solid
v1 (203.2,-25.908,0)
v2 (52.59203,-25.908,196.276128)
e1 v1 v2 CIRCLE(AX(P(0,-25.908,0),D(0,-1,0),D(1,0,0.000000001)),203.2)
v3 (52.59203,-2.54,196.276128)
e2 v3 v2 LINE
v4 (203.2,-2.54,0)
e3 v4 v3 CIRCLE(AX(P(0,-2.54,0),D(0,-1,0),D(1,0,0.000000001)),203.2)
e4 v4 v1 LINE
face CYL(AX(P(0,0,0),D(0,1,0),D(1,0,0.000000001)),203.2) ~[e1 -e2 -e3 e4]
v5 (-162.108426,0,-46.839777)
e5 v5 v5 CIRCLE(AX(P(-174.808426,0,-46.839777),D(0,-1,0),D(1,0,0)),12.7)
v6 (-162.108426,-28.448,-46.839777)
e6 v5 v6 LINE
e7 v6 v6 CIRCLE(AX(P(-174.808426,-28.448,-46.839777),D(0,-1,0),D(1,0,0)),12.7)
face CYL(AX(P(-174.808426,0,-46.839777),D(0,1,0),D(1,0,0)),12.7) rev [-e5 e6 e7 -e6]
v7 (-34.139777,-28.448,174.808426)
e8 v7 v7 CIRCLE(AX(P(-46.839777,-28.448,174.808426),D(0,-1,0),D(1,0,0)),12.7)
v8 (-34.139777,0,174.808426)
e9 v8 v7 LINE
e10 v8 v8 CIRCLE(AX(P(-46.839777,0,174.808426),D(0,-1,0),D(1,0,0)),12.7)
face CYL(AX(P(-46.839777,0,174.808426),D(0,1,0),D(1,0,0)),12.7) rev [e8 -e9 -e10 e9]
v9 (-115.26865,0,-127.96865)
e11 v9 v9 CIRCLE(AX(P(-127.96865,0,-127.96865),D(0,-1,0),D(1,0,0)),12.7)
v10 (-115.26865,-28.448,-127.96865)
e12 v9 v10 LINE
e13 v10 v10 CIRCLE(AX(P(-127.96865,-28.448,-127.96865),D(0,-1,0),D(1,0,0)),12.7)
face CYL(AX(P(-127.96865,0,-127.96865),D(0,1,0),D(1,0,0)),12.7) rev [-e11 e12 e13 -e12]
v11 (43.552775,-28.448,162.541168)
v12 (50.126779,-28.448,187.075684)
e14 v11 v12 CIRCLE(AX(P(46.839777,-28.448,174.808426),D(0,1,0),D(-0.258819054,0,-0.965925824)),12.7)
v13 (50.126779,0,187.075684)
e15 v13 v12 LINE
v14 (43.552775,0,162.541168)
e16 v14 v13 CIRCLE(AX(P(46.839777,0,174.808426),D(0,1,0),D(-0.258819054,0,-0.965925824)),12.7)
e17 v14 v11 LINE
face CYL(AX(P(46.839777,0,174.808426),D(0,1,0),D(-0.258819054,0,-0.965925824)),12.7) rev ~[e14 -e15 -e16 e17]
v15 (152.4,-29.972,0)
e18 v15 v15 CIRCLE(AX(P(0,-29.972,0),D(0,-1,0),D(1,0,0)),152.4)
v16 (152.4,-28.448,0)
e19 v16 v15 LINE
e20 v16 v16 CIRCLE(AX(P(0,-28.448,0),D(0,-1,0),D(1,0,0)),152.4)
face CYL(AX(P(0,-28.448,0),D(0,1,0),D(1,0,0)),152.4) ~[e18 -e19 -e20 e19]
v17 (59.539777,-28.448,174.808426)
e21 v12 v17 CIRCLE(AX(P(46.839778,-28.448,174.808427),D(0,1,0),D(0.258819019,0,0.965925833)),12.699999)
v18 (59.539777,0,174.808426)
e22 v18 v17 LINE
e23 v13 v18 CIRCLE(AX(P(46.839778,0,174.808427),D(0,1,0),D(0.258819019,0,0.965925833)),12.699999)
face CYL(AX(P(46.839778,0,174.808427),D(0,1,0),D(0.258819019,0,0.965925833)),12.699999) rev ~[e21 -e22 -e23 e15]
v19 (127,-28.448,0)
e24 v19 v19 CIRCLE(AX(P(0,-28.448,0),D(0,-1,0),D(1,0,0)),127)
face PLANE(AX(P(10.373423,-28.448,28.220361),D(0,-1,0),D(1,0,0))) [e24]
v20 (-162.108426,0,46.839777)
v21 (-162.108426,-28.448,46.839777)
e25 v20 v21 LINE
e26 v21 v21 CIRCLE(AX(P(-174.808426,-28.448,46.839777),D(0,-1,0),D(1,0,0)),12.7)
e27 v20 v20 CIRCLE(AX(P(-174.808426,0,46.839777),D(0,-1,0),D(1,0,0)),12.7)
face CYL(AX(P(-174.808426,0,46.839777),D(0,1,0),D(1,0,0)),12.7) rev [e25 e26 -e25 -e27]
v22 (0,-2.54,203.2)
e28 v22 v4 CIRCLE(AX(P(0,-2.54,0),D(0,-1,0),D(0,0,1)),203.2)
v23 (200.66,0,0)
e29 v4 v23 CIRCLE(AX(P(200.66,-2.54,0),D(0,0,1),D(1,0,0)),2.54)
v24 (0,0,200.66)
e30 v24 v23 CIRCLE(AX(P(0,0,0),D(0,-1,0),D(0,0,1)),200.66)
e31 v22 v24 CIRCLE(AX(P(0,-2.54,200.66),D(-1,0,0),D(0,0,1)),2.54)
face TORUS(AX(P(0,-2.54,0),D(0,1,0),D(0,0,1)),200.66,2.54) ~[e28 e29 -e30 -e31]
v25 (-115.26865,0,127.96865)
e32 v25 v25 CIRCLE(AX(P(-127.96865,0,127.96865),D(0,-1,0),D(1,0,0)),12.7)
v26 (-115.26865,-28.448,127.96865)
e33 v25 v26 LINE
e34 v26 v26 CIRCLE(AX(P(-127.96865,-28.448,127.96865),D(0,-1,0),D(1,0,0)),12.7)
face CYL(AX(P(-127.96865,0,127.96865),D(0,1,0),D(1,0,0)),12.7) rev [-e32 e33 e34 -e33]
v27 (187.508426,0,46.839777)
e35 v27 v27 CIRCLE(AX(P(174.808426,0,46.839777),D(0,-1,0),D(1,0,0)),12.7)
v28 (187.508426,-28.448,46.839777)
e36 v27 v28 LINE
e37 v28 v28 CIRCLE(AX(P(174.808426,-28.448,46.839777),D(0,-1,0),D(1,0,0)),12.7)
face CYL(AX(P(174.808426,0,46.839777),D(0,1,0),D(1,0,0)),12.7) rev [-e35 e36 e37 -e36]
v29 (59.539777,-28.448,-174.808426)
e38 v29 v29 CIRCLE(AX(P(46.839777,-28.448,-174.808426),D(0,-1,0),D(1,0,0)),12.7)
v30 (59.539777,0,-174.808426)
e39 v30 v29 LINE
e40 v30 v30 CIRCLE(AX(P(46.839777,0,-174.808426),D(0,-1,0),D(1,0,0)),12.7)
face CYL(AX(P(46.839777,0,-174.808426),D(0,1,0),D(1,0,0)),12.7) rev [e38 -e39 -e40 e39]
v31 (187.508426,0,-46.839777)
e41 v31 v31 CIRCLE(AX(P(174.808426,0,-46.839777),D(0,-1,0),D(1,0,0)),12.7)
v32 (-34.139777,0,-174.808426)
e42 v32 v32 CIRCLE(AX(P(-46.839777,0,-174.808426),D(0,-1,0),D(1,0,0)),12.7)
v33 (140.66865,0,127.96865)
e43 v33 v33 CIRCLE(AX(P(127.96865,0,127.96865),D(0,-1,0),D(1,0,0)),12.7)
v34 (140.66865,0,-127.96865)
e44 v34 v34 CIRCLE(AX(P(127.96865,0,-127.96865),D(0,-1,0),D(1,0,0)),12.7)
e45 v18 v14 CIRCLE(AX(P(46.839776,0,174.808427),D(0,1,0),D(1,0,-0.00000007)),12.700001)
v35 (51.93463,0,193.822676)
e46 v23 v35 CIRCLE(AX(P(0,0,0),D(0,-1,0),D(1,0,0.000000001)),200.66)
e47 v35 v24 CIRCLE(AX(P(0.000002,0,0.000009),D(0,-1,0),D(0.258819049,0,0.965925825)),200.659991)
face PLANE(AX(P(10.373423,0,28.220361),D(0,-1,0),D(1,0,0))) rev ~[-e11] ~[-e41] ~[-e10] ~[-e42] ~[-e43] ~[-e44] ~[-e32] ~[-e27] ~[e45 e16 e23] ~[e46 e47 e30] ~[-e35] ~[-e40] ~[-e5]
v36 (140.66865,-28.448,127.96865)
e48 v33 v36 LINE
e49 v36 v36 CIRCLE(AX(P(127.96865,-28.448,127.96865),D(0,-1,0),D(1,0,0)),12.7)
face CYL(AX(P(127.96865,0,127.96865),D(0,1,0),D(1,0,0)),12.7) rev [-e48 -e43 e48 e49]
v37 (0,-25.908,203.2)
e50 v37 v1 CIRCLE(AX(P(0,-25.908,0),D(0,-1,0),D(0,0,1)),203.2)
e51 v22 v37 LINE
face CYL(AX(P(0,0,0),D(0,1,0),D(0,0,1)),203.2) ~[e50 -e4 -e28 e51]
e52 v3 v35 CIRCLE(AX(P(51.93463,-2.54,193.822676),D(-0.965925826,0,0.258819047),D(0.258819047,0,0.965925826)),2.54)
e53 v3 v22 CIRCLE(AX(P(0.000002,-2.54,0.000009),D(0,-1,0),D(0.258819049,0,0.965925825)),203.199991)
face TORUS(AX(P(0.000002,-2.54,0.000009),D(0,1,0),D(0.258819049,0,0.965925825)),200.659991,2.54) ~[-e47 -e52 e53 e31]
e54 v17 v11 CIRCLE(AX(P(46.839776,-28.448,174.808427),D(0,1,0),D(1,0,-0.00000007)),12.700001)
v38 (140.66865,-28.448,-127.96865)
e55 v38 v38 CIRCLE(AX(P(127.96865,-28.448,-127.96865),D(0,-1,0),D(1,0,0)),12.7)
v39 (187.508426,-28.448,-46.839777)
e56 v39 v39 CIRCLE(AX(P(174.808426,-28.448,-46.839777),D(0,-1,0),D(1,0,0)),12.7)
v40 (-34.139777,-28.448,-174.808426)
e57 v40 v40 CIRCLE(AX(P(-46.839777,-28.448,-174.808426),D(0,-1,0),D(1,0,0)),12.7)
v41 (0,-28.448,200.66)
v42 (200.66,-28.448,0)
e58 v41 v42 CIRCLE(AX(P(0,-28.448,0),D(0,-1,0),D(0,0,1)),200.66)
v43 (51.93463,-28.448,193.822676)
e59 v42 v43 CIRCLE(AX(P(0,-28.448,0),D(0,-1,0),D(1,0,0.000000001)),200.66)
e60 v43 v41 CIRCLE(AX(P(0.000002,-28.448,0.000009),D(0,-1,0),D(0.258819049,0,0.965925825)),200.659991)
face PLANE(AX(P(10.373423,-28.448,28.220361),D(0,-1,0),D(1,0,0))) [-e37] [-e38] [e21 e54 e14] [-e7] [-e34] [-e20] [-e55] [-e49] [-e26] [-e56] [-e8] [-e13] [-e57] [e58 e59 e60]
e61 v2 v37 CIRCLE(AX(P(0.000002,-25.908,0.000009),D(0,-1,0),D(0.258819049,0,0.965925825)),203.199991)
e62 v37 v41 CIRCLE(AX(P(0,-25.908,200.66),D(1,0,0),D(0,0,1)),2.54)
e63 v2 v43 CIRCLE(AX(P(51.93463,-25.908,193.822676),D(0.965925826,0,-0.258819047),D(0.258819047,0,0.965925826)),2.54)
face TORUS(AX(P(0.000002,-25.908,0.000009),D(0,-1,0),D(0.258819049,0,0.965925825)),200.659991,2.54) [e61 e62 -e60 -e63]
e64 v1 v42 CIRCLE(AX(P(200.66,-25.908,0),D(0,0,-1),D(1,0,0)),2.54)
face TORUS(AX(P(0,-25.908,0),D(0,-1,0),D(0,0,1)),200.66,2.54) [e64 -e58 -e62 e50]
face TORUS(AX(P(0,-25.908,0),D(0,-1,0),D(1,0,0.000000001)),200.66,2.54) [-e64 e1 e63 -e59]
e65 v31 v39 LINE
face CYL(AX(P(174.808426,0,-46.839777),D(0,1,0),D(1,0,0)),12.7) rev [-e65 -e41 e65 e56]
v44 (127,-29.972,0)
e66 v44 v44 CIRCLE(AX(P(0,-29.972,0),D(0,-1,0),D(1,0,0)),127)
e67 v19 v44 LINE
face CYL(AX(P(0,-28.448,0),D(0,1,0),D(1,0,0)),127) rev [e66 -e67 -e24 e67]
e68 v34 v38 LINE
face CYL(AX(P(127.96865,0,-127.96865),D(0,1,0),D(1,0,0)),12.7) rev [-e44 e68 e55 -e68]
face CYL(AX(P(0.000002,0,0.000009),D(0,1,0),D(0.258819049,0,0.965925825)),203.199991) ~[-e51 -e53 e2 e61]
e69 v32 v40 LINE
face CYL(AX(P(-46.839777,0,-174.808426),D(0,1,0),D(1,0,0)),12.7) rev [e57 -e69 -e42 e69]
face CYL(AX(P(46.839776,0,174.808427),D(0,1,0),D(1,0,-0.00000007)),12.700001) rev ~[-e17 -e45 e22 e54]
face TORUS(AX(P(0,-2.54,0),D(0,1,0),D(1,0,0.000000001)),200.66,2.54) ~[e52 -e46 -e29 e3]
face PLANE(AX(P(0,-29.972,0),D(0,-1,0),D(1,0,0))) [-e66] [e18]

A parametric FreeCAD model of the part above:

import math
import FreeCAD as App
import Part
import Sketcher
Q = App.Units.Quantity


def edges_at(feature, points):
    """Names of the edges that pass closest to the given points."""
    edges = feature.Shape.Edges
    near = lambda p: min(range(len(edges)), key=lambda i: edges[i].distToShape(Part.Vertex(*p))[0])
    return sorted({f"Edge{near(p) + 1}" for p in points})

doc = App.newDocument("Part")
body = doc.addObject("PartDesign::Body", "Body")

sketch1 = doc.addObject("Sketcher::SketchObject", "Sketch")
body.addObject(sketch1)
sketch1.AttachmentSupport = (doc.XZ_Plane, [""])
sketch1.MapMode = "FlatFace"
sketch1.addGeometry([
    Part.ArcOfCircle(Part.Circle(App.Vector(0, 0, 0), App.Vector(0, 0, 1), 203), math.radians(90), math.radians(360)),
    Part.ArcOfCircle(Part.Circle(App.Vector(0, 0, 0), App.Vector(0, 0, 1), 203), math.radians(0), math.radians(75)),
    Part.ArcOfCircle(Part.Circle(App.Vector(0, 0, 0), App.Vector(0, 0, 1), 203), math.radians(75), math.radians(90)),
    Part.ArcOfCircle(Part.Circle(App.Vector(47, 175, 0), App.Vector(0, 0, 1), 13), math.radians(-105), math.radians(0)),
    Part.ArcOfCircle(Part.Circle(App.Vector(47, 175, 0), App.Vector(0, 0, 1), 13), math.radians(75), math.radians(255)),
    Part.ArcOfCircle(Part.Circle(App.Vector(47, 175, 0), App.Vector(0, 0, 1), 13), math.radians(0), math.radians(75)),
    Part.Circle(App.Vector(-128, -128, 0), App.Vector(0, 0, 1), 13),
    Part.Circle(App.Vector(-47, -175, 0), App.Vector(0, 0, 1), 13),
    Part.Circle(App.Vector(-175, -47, 0), App.Vector(0, 0, 1), 13),
    Part.Circle(App.Vector(47, -175, 0), App.Vector(0, 0, 1), 13),
    Part.Circle(App.Vector(128, -128, 0), App.Vector(0, 0, 1), 13),
    Part.Circle(App.Vector(175, -47, 0), App.Vector(0, 0, 1), 13),
    Part.Circle(App.Vector(-175, 47, 0), App.Vector(0, 0, 1), 13),
    Part.Circle(App.Vector(-128, 128, 0), App.Vector(0, 0, 1), 13),
    Part.Circle(App.Vector(-47, 175, 0), App.Vector(0, 0, 1), 13),
    Part.Circle(App.Vector(175, 47, 0), App.Vector(0, 0, 1), 13),
    Part.Circle(App.Vector(128, 128, 0), App.Vector(0, 0, 1), 13),
], False)
sketch1.addConstraint([
    Sketcher.Constraint("Tangent", 0, 2, 1, 1),
    Sketcher.Constraint("Tangent", 1, 2, 2, 1),
    Sketcher.Constraint("Coincident", 2, 2, 0, 1),
    Sketcher.Constraint("Tangent", 3, 1, 4, 2),
    Sketcher.Constraint("Tangent", 4, 1, 5, 2),
    Sketcher.Constraint("Tangent", 5, 1, 3, 2),
    Sketcher.Constraint("Coincident", 0, 3, -1, 1),
    Sketcher.Constraint("Equal", 0, 1),
    Sketcher.Constraint("Equal", 5, 6),
    Sketcher.Constraint("Equal", 6, 7),
    Sketcher.Constraint("Equal", 7, 8),
    Sketcher.Constraint("Equal", 8, 9),
    Sketcher.Constraint("Equal", 9, 10),
    Sketcher.Constraint("Equal", 10, 11),
    Sketcher.Constraint("Equal", 11, 12),
    Sketcher.Constraint("Equal", 12, 13),
    Sketcher.Constraint("Equal", 13, 14),
    Sketcher.Constraint("Equal", 14, 15),
    Sketcher.Constraint("Equal", 15, 16),
    Sketcher.Constraint("Symmetric", 3, 3, 7, 3, -1, 1),
    Sketcher.Constraint("Symmetric", 11, 3, 12, 3, -1, 1),
    Sketcher.Constraint("Symmetric", 10, 3, 13, 3, -1, 1),
    Sketcher.Constraint("Symmetric", 9, 3, 14, 3, -1, 1),
    Sketcher.Constraint("Symmetric", 8, 3, 15, 3, -1, 1),
    Sketcher.Constraint("Symmetric", 6, 3, 16, 3, -1, 1),
    Sketcher.Constraint("Symmetric", 7, 3, 9, 3, -2),
    Sketcher.Constraint("Symmetric", 6, 3, 10, 3, -2),
    Sketcher.Constraint("Symmetric", 8, 3, 11, 3, -2),
    Sketcher.Constraint("PointOnObject", 0, 2, -1),
    Sketcher.Constraint("PointOnObject", 2, 2, -2),
    Sketcher.Constraint("Horizontal", 14, 3, 5, 1),
    Sketcher.Constraint("Diameter", 6, Q("1 in")),
    Sketcher.Constraint("Radius", 0, Q("8 in")),
    Sketcher.Constraint("DistanceY", 3, 3, 1, 2, 21.467701),
    Sketcher.Constraint("DistanceX", 3, 1, 3, 3, 3.287001),
    Sketcher.Constraint("DistanceX", 5, 3, 4, 1, 3.287001),
    Sketcher.Constraint("DistanceX", 6, 3, -1, 1, 127.96865),
    Sketcher.Constraint("DistanceY", 6, 3, -1, 1, 127.96865),
    Sketcher.Constraint("DistanceX", -1, 1, 1, 2, 52.59203),
    Sketcher.Constraint("DistanceX", -1, 1, 4, 1, 50.126779),
    Sketcher.Constraint("DistanceX", 8, 3, 7, 3, 127.968649),
    Sketcher.Constraint("DistanceY", 7, 3, 8, 3, 127.968649),
])
pad1 = doc.addObject("PartDesign::Pad", "Pad")
body.addObject(pad1)
pad1.Profile = sketch1
pad1.Length = Q("1.12 in")
doc.recompute()

fillet = doc.addObject("PartDesign::Fillet", "Fillet")
body.addObject(fillet)
fillet.Base = (pad1, edges_at(pad1, [(-143.684, -28.448, -143.684), (-143.684, 0, -143.684)]))
fillet.Radius = Q("0.1 in")

sketch2 = doc.addObject("Sketcher::SketchObject", "Sketch001")
body.addObject(sketch2)
sketch2.AttachmentSupport = (doc.XZ_Plane, [""])
sketch2.MapMode = "FlatFace"
sketch2.AttachmentOffset = App.Placement(App.Vector(0, 0, 1.12 * 25.4), App.Rotation())
sketch2.addGeometry([
    Part.Circle(App.Vector(0, 0, 0), App.Vector(0, 0, 1), 152),
    Part.Circle(App.Vector(0, 0, 0), App.Vector(0, 0, 1), 127),
], False)
sketch2.addConstraint([
    Sketcher.Constraint("Coincident", 0, 3, -1, 1),
    Sketcher.Constraint("Coincident", 1, 3, -1, 1),
    Sketcher.Constraint("Diameter", 0, Q("12 in")),
    Sketcher.Constraint("Diameter", 1, Q("10 in")),
])
pad2 = doc.addObject("PartDesign::Pad", "Pad001")
body.addObject(pad2)
pad2.Profile = sketch2
pad2.Length = Q("0.06 in")

doc.recompute()
